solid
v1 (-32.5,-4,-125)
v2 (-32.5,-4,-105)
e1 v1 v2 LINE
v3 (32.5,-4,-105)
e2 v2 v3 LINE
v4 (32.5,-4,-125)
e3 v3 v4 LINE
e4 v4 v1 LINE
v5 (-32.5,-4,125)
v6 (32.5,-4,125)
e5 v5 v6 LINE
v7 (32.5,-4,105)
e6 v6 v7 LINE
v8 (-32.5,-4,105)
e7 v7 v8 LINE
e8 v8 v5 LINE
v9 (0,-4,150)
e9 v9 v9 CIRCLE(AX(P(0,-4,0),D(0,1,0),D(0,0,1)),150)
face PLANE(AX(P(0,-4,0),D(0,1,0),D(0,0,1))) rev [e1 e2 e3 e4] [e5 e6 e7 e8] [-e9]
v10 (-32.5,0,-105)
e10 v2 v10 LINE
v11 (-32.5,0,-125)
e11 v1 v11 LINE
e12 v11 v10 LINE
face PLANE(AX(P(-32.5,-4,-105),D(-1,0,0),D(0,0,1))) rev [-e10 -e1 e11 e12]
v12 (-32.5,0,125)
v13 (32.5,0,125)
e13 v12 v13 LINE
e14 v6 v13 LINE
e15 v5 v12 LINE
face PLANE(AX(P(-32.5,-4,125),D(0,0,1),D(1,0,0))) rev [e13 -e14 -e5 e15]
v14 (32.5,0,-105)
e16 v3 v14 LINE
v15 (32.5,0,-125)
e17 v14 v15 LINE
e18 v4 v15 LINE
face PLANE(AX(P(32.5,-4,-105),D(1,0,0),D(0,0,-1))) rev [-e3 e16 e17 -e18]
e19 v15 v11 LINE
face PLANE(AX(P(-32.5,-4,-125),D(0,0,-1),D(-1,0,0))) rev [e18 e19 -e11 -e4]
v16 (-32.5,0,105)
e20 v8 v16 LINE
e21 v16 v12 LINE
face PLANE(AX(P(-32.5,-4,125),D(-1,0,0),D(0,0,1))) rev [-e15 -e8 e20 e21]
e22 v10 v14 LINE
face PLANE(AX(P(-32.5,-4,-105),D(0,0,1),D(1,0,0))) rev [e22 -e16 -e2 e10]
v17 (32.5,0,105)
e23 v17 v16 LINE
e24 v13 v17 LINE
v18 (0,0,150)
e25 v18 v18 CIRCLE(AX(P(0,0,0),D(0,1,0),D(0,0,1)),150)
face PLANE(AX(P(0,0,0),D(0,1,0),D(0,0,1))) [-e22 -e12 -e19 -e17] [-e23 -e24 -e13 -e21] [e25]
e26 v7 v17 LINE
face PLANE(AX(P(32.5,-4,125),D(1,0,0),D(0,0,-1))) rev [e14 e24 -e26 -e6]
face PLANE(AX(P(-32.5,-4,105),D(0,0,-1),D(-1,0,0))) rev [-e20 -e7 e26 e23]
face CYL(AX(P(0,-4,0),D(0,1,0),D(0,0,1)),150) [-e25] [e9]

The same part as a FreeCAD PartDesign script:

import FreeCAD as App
import Part
import Sketcher
from FreeCAD import Vector


def add_polygon(sketch, points):
    """Adds a closed chain of lines whose ends are joined by coincident constraints."""
    first, n = sketch.GeometryCount, len(points)
    for a, b in zip(points, points[1:] + points[:1]):
        sketch.addGeometry(Part.LineSegment(App.Vector(*a, 0), App.Vector(*b, 0)), False)
    for i in range(n):
        sketch.addConstraint(Sketcher.Constraint("Coincident", first + i, 2, first + (i + 1) % n, 1))

doc = App.newDocument("Part")
body = doc.addObject("PartDesign::Body", "Body")

sketch1 = body.newObject("Sketcher::SketchObject", "Sketch")
sketch1.AttachmentSupport = (doc.getObject("XZ_Plane"), [""])
sketch1.MapMode = "FlatFace"
sketch1.addGeometry(Part.Circle(Vector(0, 0, 0), Vector(0, 0, 1), 150), False)
sketch1.addConstraint([
    Sketcher.Constraint("Coincident", 0, 3, -1, 1),
    Sketcher.Constraint("Diameter", 0, 300.0),
])
pad1 = body.newObject("PartDesign::Pad", "Pad")
pad1.Profile = sketch1
pad1.Length = 4

sketch2 = body.newObject("Sketcher::SketchObject", "Sketch001")
sketch2.AttachmentSupport = (doc.getObject("XZ_Plane"), [""])
sketch2.MapMode = "FlatFace"
add_polygon(sketch2, [(-32, 105), (-32, 125), (32, 125), (32, 105)])
add_polygon(sketch2, [(-32, -125), (-32, -105), (32, -105), (32, -125)])
sketch2.addConstraint([
    Sketcher.Constraint("Vertical", 0),
    Sketcher.Constraint("Horizontal", 1),
    Sketcher.Constraint("Vertical", 2),
    Sketcher.Constraint("Horizontal", 3),
    Sketcher.Constraint("Vertical", 4),
    Sketcher.Constraint("Horizontal", 5),
    Sketcher.Constraint("Vertical", 6),
    Sketcher.Constraint("Horizontal", 7),
    Sketcher.Constraint("Symmetric", 2, 2, 4, 2, -1, 1),
    Sketcher.Constraint("Symmetric", 0, 2, 6, 2, -1, 1),
    Sketcher.Constraint("Vertical", 3, 2, 4, 2),
    Sketcher.Constraint("DistanceX", 1, 1, 1, 2, 65.0),
    Sketcher.Constraint("DistanceY", 0, 1, 0, 2, 20.0),
    Sketcher.Constraint("DistanceY", -1, 1, 0, 2, 125.0),
])
pocket1 = body.newObject("PartDesign::Pocket", "Pocket")
pocket1.Profile = sketch2
pocket1.Type = "ThroughAll"
pocket1.Reversed = True

doc.recompute()
